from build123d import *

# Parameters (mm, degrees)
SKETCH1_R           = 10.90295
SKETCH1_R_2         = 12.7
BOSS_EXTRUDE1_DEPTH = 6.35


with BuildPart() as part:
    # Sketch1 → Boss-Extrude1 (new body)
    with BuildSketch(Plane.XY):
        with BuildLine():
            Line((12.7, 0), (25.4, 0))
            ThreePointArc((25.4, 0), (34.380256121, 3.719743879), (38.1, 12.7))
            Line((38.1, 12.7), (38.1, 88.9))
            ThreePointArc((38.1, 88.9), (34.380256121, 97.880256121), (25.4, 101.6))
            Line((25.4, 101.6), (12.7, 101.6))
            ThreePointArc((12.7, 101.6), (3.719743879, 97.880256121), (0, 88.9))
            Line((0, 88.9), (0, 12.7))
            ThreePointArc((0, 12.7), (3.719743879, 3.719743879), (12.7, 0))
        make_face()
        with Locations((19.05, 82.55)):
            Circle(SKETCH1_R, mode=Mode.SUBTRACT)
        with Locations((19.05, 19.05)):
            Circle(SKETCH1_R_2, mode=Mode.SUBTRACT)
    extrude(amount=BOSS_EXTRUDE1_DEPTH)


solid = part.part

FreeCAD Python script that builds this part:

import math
import FreeCAD as App
import Part
import Sketcher
Q = App.Units.Quantity

doc = App.newDocument("Part")
body = doc.addObject("PartDesign::Body", "Body")

# Sketch on XY plane
sketch1 = doc.addObject("Sketcher::SketchObject", "Sketch")
body.addObject(sketch1)
sketch1.AttachmentSupport = (doc.XY_Plane, [""])
sketch1.MapMode = "FlatFace"
sketch1.addGeometry(Part.LineSegment(App.Vector(13, 0, 0), App.Vector(25, 0, 0)), False)
sketch1.addGeometry(Part.ArcOfCircle(Part.Circle(App.Vector(25, 13, 0), App.Vector(0, 0, 1), 13), math.radians(-90), math.radians(0)), False)
sketch1.addGeometry(Part.LineSegment(App.Vector(38, 13, 0), App.Vector(38, 89, 0)), False)
sketch1.addGeometry(Part.ArcOfCircle(Part.Circle(App.Vector(25, 89, 0), App.Vector(0, 0, 1), 13), math.radians(0), math.radians(90)), False)
sketch1.addGeometry(Part.LineSegment(App.Vector(25, 102, 0), App.Vector(13, 102, 0)), False)
sketch1.addGeometry(Part.ArcOfCircle(Part.Circle(App.Vector(13, 89, 0), App.Vector(0, 0, 1), 13), math.radians(90), math.radians(180)), False)
sketch1.addGeometry(Part.LineSegment(App.Vector(0, 89, 0), App.Vector(0, 13, 0)), False)
sketch1.addGeometry(Part.ArcOfCircle(Part.Circle(App.Vector(13, 13, 0), App.Vector(0, 0, 1), 13), math.radians(180), math.radians(270)), False)
sketch1.addGeometry(Part.Circle(App.Vector(19, 19, 0), App.Vector(0, 0, 1), 13), False)
sketch1.addGeometry(Part.Circle(App.Vector(19, 83, 0), App.Vector(0, 0, 1), 11), False)
sketch1.addConstraint(Sketcher.Constraint("Tangent", 0, 2, 1, 1))
sketch1.addConstraint(Sketcher.Constraint("Tangent", 1, 2, 2, 1))
sketch1.addConstraint(Sketcher.Constraint("Tangent", 2, 2, 3, 1))
sketch1.addConstraint(Sketcher.Constraint("Tangent", 3, 2, 4, 1))
sketch1.addConstraint(Sketcher.Constraint("Tangent", 4, 2, 5, 1))
sketch1.addConstraint(Sketcher.Constraint("Tangent", 5, 2, 6, 1))
sketch1.addConstraint(Sketcher.Constraint("Tangent", 6, 2, 7, 1))
sketch1.addConstraint(Sketcher.Constraint("Tangent", 7, 2, 0, 1))
sketch1.addConstraint(Sketcher.Constraint("Horizontal", 0))
sketch1.addConstraint(Sketcher.Constraint("Vertical", 2))
sketch1.addConstraint(Sketcher.Constraint("Horizontal", 4))
sketch1.addConstraint(Sketcher.Constraint("Vertical", 6))
sketch1.addConstraint(Sketcher.Constraint("Equal", 1, 3))
sketch1.addConstraint(Sketcher.Constraint("Equal", 3, 5))
sketch1.addConstraint(Sketcher.Constraint("Equal", 5, 7))
sketch1.addConstraint(Sketcher.Constraint("Equal", 7, 8))
sketch1.addConstraint(Sketcher.Constraint("PointOnObject", 0, 2, -1))
sketch1.addConstraint(Sketcher.Constraint("PointOnObject", 5, 2, -2))
sketch1.addConstraint(Sketcher.Constraint("Vertical", 8, 3, 9, 3))
sketch1.addConstraint(Sketcher.Constraint("Diameter", 8, Q("1 in")))
sketch1.addConstraint(Sketcher.Constraint("DistanceY", 2, 1, 2, 2, Q("3 in")))
sketch1.addConstraint(Sketcher.Constraint("DistanceX", 0, 1, 0, 2, Q("0.5 in")))
sketch1.addConstraint(Sketcher.Constraint("Diameter", 9, Q("0.8585 in")))
sketch1.addConstraint(Sketcher.Constraint("DistanceY", 8, 3, 9, 3, Q("2.5 in")))
sketch1.addConstraint(Sketcher.Constraint("DistanceX", -1, 1, 8, 3, Q("0.75 in")))
sketch1.addConstraint(Sketcher.Constraint("DistanceY", -1, 1, 8, 3, Q("0.75 in")))
pad1 = doc.addObject("PartDesign::Pad", "Pad")
body.addObject(pad1)
pad1.Profile = sketch1
pad1.Length = Q("0.25 in")

doc.recompute()
